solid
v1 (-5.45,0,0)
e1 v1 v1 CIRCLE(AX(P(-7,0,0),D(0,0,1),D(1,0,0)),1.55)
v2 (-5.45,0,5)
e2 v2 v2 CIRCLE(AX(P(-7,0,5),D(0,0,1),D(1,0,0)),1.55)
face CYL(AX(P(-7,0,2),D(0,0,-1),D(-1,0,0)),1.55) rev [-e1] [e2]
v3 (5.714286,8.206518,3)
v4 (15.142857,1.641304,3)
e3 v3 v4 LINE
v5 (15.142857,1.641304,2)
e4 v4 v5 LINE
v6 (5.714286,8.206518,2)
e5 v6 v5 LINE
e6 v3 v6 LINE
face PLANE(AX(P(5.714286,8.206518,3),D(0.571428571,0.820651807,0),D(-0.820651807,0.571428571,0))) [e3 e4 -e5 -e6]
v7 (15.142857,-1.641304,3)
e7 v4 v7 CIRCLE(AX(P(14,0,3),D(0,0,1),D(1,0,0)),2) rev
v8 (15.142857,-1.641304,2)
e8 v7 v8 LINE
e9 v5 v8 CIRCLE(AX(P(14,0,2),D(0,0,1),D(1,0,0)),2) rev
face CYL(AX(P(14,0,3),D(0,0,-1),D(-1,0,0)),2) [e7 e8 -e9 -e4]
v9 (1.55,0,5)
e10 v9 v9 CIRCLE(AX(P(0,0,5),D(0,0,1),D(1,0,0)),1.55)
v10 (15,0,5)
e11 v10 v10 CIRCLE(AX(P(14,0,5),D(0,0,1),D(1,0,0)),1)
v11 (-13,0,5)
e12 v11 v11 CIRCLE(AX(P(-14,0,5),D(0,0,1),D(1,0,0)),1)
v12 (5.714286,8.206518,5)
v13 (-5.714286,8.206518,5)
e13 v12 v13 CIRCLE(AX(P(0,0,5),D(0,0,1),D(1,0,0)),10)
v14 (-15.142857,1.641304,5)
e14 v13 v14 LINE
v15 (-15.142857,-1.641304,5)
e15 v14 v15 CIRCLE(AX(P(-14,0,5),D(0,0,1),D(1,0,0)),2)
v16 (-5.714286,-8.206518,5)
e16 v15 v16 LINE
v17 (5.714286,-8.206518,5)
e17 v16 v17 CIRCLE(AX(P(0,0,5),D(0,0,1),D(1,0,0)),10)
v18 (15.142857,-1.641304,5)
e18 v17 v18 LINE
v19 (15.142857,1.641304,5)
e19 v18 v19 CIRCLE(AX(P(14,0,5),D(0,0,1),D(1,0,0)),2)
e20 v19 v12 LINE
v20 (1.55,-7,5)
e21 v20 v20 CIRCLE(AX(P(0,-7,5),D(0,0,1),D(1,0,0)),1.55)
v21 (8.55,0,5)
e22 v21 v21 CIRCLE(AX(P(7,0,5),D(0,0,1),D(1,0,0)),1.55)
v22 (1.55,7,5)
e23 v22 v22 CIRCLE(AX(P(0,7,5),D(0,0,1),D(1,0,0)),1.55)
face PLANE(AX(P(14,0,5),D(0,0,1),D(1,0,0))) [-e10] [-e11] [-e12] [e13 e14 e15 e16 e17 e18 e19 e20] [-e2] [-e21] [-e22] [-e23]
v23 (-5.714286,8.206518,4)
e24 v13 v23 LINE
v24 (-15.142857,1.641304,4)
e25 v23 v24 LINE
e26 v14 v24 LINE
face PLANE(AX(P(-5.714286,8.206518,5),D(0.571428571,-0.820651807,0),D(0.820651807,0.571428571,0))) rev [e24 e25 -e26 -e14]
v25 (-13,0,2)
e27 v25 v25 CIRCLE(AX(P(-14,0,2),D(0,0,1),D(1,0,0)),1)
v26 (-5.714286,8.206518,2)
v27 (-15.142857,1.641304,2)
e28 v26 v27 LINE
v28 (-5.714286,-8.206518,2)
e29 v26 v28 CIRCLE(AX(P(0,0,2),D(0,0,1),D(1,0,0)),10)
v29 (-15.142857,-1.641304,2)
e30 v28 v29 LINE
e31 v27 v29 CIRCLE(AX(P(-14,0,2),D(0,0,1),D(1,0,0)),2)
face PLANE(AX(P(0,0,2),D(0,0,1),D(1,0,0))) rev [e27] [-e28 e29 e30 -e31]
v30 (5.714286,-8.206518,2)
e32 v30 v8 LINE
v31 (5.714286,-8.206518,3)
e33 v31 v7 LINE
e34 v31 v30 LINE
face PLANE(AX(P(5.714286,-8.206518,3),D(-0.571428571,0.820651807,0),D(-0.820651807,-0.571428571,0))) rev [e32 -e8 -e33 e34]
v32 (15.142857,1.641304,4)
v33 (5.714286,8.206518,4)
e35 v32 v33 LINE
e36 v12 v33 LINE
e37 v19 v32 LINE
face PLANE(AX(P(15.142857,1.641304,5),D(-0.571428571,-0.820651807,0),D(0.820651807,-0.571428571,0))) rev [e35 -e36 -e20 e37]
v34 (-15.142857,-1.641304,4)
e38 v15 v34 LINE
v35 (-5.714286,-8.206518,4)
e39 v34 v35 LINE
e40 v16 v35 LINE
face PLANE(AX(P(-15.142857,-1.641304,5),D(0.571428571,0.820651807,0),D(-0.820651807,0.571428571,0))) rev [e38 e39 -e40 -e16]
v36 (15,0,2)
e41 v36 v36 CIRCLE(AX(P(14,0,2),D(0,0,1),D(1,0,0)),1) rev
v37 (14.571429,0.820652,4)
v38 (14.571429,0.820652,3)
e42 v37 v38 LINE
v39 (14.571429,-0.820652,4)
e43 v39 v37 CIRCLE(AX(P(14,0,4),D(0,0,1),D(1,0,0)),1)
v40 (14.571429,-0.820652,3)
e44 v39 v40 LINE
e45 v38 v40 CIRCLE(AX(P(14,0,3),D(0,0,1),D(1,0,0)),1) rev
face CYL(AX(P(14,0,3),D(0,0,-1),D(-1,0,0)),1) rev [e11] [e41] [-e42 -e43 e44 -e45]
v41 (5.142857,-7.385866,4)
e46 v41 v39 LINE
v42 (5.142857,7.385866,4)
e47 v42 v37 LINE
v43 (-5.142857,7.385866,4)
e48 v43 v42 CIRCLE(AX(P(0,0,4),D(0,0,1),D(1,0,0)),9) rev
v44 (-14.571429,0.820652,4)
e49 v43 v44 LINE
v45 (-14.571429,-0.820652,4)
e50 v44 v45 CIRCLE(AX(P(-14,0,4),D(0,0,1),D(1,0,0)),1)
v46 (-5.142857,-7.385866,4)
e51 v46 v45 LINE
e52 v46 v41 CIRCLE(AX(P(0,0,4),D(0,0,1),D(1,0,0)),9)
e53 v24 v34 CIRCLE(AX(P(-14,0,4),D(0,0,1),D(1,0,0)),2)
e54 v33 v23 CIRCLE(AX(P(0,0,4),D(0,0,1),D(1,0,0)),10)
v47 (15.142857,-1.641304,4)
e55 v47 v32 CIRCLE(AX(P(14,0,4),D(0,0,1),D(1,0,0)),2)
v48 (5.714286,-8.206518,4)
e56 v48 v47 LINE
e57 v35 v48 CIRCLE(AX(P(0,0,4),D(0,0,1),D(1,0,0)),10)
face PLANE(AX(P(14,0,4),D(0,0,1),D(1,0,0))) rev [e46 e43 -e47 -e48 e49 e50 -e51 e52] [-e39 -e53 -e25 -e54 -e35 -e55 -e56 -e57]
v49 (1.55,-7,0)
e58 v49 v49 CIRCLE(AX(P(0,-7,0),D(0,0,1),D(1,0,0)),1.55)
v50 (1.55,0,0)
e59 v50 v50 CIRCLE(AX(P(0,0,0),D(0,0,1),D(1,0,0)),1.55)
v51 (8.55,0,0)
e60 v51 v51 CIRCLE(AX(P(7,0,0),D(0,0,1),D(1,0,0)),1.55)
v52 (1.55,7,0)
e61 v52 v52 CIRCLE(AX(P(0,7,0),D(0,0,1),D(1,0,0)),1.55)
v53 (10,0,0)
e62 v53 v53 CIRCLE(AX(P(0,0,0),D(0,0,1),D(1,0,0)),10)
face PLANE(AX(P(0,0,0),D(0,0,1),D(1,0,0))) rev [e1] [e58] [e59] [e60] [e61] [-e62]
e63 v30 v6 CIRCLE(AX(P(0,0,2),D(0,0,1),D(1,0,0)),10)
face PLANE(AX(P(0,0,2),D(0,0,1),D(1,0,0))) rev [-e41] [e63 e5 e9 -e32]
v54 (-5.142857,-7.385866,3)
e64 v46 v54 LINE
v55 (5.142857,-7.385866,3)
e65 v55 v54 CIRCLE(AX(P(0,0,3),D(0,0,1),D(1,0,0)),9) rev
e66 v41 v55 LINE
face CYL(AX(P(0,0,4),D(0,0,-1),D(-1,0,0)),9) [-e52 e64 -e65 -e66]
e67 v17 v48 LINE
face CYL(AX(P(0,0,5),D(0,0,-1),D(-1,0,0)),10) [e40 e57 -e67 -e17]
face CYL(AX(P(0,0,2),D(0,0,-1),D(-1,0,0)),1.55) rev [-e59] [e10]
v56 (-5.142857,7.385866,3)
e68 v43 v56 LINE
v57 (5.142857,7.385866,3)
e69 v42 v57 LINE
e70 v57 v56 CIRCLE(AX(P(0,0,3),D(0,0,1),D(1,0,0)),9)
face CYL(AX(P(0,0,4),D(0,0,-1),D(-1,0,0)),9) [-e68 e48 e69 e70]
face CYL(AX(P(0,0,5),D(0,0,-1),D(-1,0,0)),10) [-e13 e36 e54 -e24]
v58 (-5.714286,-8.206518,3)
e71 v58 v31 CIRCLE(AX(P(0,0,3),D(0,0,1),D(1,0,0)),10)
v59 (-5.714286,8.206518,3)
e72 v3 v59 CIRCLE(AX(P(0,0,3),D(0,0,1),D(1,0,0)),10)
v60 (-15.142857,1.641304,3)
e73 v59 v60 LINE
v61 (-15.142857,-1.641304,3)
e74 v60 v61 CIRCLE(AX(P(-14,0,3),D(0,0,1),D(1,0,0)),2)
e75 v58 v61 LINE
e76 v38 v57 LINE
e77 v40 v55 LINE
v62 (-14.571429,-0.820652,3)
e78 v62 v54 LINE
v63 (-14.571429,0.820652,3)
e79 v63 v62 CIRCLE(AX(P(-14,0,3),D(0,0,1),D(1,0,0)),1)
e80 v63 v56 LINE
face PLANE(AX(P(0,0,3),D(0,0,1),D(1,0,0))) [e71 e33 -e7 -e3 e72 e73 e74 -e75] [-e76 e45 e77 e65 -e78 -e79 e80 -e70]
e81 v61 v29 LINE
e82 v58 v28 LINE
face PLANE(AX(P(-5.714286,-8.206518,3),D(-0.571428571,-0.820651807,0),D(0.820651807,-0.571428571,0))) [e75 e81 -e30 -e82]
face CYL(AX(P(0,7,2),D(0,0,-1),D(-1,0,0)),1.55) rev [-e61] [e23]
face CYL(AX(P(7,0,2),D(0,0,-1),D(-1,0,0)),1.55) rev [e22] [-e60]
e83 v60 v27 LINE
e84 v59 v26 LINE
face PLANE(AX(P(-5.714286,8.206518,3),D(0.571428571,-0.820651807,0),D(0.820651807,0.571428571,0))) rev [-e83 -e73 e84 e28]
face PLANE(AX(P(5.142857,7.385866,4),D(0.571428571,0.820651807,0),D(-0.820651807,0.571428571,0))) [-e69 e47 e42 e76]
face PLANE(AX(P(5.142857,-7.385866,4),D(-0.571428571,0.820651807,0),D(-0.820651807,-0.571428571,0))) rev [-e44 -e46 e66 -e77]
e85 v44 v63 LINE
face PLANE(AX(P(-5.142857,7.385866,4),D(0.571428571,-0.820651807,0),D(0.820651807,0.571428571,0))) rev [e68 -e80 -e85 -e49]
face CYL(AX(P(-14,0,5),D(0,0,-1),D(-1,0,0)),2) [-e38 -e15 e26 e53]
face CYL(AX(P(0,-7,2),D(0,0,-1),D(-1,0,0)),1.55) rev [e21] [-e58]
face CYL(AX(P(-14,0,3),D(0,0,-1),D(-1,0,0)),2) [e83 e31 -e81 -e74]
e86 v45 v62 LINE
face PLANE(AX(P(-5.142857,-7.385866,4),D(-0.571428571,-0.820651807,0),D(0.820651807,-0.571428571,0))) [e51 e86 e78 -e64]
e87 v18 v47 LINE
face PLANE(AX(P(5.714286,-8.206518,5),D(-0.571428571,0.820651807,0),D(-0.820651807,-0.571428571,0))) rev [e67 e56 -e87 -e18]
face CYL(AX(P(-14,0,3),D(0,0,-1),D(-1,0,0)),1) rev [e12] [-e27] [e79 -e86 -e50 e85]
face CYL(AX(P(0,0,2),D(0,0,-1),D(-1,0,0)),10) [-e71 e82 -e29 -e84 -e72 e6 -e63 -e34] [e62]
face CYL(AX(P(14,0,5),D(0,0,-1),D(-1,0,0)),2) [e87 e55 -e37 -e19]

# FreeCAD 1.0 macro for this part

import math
import FreeCAD as App
import Part
import Sketcher
from FreeCAD import Vector

doc = App.newDocument("Part")
params = doc.addObject("Spreadsheet::Sheet", "Params")
for row, (alias, value) in enumerate([
    ("sketch1_diameter", "20 mm"),
    ("sketch1_diameter2", "3.1 mm"),
    ("pad1_length", "2 mm"),
    ("sketch2_radius", "2 mm"),
    ("sketch2_radius2", "10 mm"),
    ("sketch2_radius3", "1 mm"),
    ("sketch2_diameter", "3.1 mm"),
    ("pad2_length", "1 mm"),
    ("sketch3_radius", "1 mm"),
    ("sketch3_radius2", "9 mm"),
    ("sketch3_diameter", "3.1 mm"),
    ("pad3_length", "2 mm"),
    ("sketch4_diameter", "2 mm"),
    ("sketch4_radius", "10 mm"),
    ("sketch4_radius2", "2 mm"),
    ("sketch4_diameter2", "3.1 mm"),
    ("pad4_length", "1 mm"),
], start=1):
    params.set(f"A{row}", alias)
    params.set(f"B{row}", "=" + value)
    params.setAlias(f"B{row}", alias)

body = doc.addObject("PartDesign::Body", "Body")

# Sketch on XY plane
sketch1 = body.newObject("Sketcher::SketchObject", "Sketch")
sketch1.AttachmentSupport = (doc.getObject("XY_Plane"), [""])
sketch1.MapMode = "FlatFace"
sketch1.addGeometry(Part.Circle(Vector(0, 0, 0), Vector(0, 0, 1), 10), False)
sketch1.addGeometry(Part.Circle(Vector(0, -7, 0), Vector(0, 0, 1), 1.6), False)
sketch1.addGeometry(Part.Circle(Vector(-7, 0, 0), Vector(0, 0, 1), 1.6), False)
sketch1.addGeometry(Part.Circle(Vector(0, 0, 0), Vector(0, 0, 1), 1.6), False)
sketch1.addGeometry(Part.Circle(Vector(0, 7, 0), Vector(0, 0, 1), 1.6), False)
sketch1.addGeometry(Part.Circle(Vector(7, 0, 0), Vector(0, 0, 1), 1.6), False)
sketch1.addConstraint(Sketcher.Constraint("Coincident", 0, 3, -1, 1))
sketch1.addConstraint(Sketcher.Constraint("Coincident", 3, 3, -1, 1))
sketch1.addConstraint(Sketcher.Constraint("Equal", 1, 2))
sketch1.addConstraint(Sketcher.Constraint("Equal", 2, 3))
sketch1.addConstraint(Sketcher.Constraint("Equal", 3, 4))
sketch1.addConstraint(Sketcher.Constraint("Equal", 4, 5))
sketch1.addConstraint(Sketcher.Constraint("Symmetric", 1, 3, 4, 3, -1, 1))
sketch1.addConstraint(Sketcher.Constraint("Symmetric", 2, 3, 5, 3, -1, 1))
sketch1.addConstraint(Sketcher.Constraint("PointOnObject", 1, 3, -2))
sketch1.addConstraint(Sketcher.Constraint("PointOnObject", 2, 3, -1))
sketch1.addConstraint(Sketcher.Constraint("Diameter", 0, 20.0))
sketch1.addConstraint(Sketcher.Constraint("Diameter", 1, 3.1))
sketch1.addConstraint(Sketcher.Constraint("DistanceY", 1, 3, -1, 1, 7.0))
sketch1.addConstraint(Sketcher.Constraint("DistanceX", 2, 3, -1, 1, 7.0))
sketch1.setExpression("Constraints[10]", "Params.sketch1_diameter")
sketch1.setExpression("Constraints[11]", "Params.sketch1_diameter2")
pad1 = body.newObject("PartDesign::Pad", "Pad")
pad1.Profile = sketch1
pad1.setExpression("Length", "Params.pad1_length")

# Sketch on XY plane
sketch2 = body.newObject("Sketcher::SketchObject", "Sketch001")
sketch2.AttachmentSupport = (doc.getObject("XY_Plane"), [""])
sketch2.MapMode = "FlatFace"
sketch2.AttachmentOffset = App.Placement(Vector(0, 0, 2), App.Rotation())
sketch2.addGeometry(Part.LineSegment(Vector(-5.7, 8.2, 0), Vector(-15.1, 1.6, 0)), False)
sketch2.addGeometry(Part.ArcOfCircle(Part.Circle(Vector(-14, 0, 0), Vector(0, 0, 1), 2), math.radians(125), math.radians(235)), False)
sketch2.addGeometry(Part.LineSegment(Vector(-15.1, -1.6, 0), Vector(-5.7, -8.2, 0)), False)
sketch2.addGeometry(Part.ArcOfCircle(Part.Circle(Vector(0, 0, 0), Vector(0, 0, 1), 10), math.radians(-125), math.radians(-55)), False)
sketch2.addGeometry(Part.LineSegment(Vector(5.7, -8.2, 0), Vector(15.1, -1.6, 0)), False)
sketch2.addGeometry(Part.ArcOfCircle(Part.Circle(Vector(14, 0, 0), Vector(0, 0, 1), 2), math.radians(-55), math.radians(55)), False)
sketch2.addGeometry(Part.LineSegment(Vector(15.1, 1.6, 0), Vector(5.7, 8.2, 0)), False)
sketch2.addGeometry(Part.ArcOfCircle(Part.Circle(Vector(0, 0, 0), Vector(0, 0, 1), 10), math.radians(55), math.radians(125)), False)
sketch2.addGeometry(Part.ArcOfCircle(Part.Circle(Vector(-14, 0, 0), Vector(0, 0, 1), 1), math.radians(125), math.radians(235)), False)
sketch2.addGeometry(Part.ArcOfCircle(Part.Circle(Vector(-14, 0, 0), Vector(0, 0, 1), 1), math.radians(0), math.radians(125)), False)
sketch2.addGeometry(Part.ArcOfCircle(Part.Circle(Vector(-14, 0, 0), Vector(0, 0, 1), 1), math.radians(-125), math.radians(0)), False)
sketch2.addGeometry(Part.ArcOfCircle(Part.Circle(Vector(14, 0, 0), Vector(0, 0, 1), 1), math.radians(0), math.radians(55)), False)
sketch2.addGeometry(Part.ArcOfCircle(Part.Circle(Vector(14, 0, 0), Vector(0, 0, 1), 1), math.radians(-55), math.radians(0)), False)
sketch2.addGeometry(Part.ArcOfCircle(Part.Circle(Vector(14, 0, 0), Vector(0, 0, 1), 1), math.radians(55), math.radians(305)), False)
sketch2.addGeometry(Part.Circle(Vector(7, 0, 0), Vector(0, 0, 1), 1.6), False)
sketch2.addGeometry(Part.Circle(Vector(0, 7, 0), Vector(0, 0, 1), 1.6), False)
sketch2.addGeometry(Part.Circle(Vector(0, 0, 0), Vector(0, 0, 1), 1.6), False)
sketch2.addGeometry(Part.Circle(Vector(-7, 0, 0), Vector(0, 0, 1), 1.6), False)
sketch2.addGeometry(Part.Circle(Vector(0, -7, 0), Vector(0, 0, 1), 1.6), False)
sketch2.addConstraint(Sketcher.Constraint("Tangent", 0, 2, 1, 1))
sketch2.addConstraint(Sketcher.Constraint("Tangent", 1, 2, 2, 1))
sketch2.addConstraint(Sketcher.Constraint("Tangent", 2, 2, 3, 1))
sketch2.addConstraint(Sketcher.Constraint("Tangent", 3, 2, 4, 1))
sketch2.addConstraint(Sketcher.Constraint("Tangent", 4, 2, 5, 1))
sketch2.addConstraint(Sketcher.Constraint("Tangent", 5, 2, 6, 1))
sketch2.addConstraint(Sketcher.Constraint("Tangent", 6, 2, 7, 1))
sketch2.addConstraint(Sketcher.Constraint("Tangent", 7, 2, 0, 1))
sketch2.addConstraint(Sketcher.Constraint("Tangent", 8, 1, 9, 2))
sketch2.addConstraint(Sketcher.Constraint("Tangent", 9, 1, 10, 2))
sketch2.addConstraint(Sketcher.Constraint("Tangent", 10, 1, 8, 2))
sketch2.addConstraint(Sketcher.Constraint("Tangent", 11, 1, 12, 2))
sketch2.addConstraint(Sketcher.Constraint("Tangent", 12, 1, 13, 2))
sketch2.addConstraint(Sketcher.Constraint("Tangent", 13, 1, 11, 2))
sketch2.addConstraint(Sketcher.Constraint("Coincident", 3, 3, -1, 1))
sketch2.addConstraint(Sketcher.Constraint("Coincident", 7, 3, -1, 1))
sketch2.addConstraint(Sketcher.Constraint("Coincident", 16, 3, -1, 1))
sketch2.addConstraint(Sketcher.Constraint("Coincident", 8, 3, 1, 3))
sketch2.addConstraint(Sketcher.Constraint("Coincident", 11, 3, 5, 3))
sketch2.addConstraint(Sketcher.Constraint("Equal", 1, 5))
sketch2.addConstraint(Sketcher.Constraint("Equal", 3, 7))
sketch2.addConstraint(Sketcher.Constraint("Equal", 10, 11))
sketch2.addConstraint(Sketcher.Constraint("Equal", 14, 15))
sketch2.addConstraint(Sketcher.Constraint("Equal", 15, 16))
sketch2.addConstraint(Sketcher.Constraint("Equal", 16, 17))
sketch2.addConstraint(Sketcher.Constraint("Equal", 17, 18))
sketch2.addConstraint(Sketcher.Constraint("Symmetric", 1, 3, 5, 3, -1, 1))
sketch2.addConstraint(Sketcher.Constraint("Symmetric", 14, 3, 17, 3, -1, 1))
sketch2.addConstraint(Sketcher.Constraint("Symmetric", 15, 3, 18, 3, -1, 1))
sketch2.addConstraint(Sketcher.Constraint("Symmetric", 10, 1, 12, 1, -2))
sketch2.addConstraint(Sketcher.Constraint("PointOnObject", 14, 3, -1))
sketch2.addConstraint(Sketcher.Constraint("PointOnObject", 15, 3, -2))
sketch2.addConstraint(Sketcher.Constraint("PointOnObject", 9, 1, -1))
sketch2.addConstraint(Sketcher.Constraint("PointOnObject", 11, 1, -1))
sketch2.addConstraint(Sketcher.Constraint("Horizontal", 8, 1, 13, 1))
sketch2.addConstraint(Sketcher.Constraint("Vertical", 8, 1, 10, 1))
sketch2.addConstraint(Sketcher.Constraint("Radius", 1, 2.0))
sketch2.addConstraint(Sketcher.Constraint("Radius", 3, 10.0))
sketch2.addConstraint(Sketcher.Constraint("Radius", 8, 1.0))
sketch2.addConstraint(Sketcher.Constraint("Diameter", 14, 3.1))
sketch2.addConstraint(Sketcher.Constraint("DistanceX", 1, 3, -1, 1, 14.0))
sketch2.addConstraint(Sketcher.Constraint("DistanceX", -1, 1, 14, 3, 7.0))
sketch2.addConstraint(Sketcher.Constraint("DistanceY", -1, 1, 15, 3, 7.0))
sketch2.addConstraint(Sketcher.Constraint("DistanceX", 8, 1, -1, 1, 14.571429))
sketch2.setExpression("Constraints[36]", "Params.sketch2_radius")
sketch2.setExpression("Constraints[37]", "Params.sketch2_radius2")
sketch2.setExpression("Constraints[38]", "Params.sketch2_radius3")
sketch2.setExpression("Constraints[39]", "Params.sketch2_diameter")
pad2 = body.newObject("PartDesign::Pad", "Pad001")
pad2.Profile = sketch2
pad2.setExpression("Length", "Params.pad2_length")

# Sketch on XY plane
sketch3 = body.newObject("Sketcher::SketchObject", "Sketch002")
sketch3.AttachmentSupport = (doc.getObject("XY_Plane"), [""])
sketch3.MapMode = "FlatFace"
sketch3.AttachmentOffset = App.Placement(Vector(0, 0, 2), App.Rotation())
sketch3.addGeometry(Part.LineSegment(Vector(-5.1, 7.4, 0), Vector(-8.7, 4.9, 0)), False)
sketch3.addGeometry(Part.LineSegment(Vector(-8.7, 4.9, 0), Vector(-14.6, 0.8, 0)), False)
sketch3.addGeometry(Part.ArcOfCircle(Part.Circle(Vector(-14, 0, 0), Vector(0, 0, 1), 1), math.radians(0), math.radians(125)), False)
sketch3.addGeometry(Part.ArcOfCircle(Part.Circle(Vector(-14, 0, 0), Vector(0, 0, 1), 1), math.radians(-125), math.radians(0)), False)
sketch3.addGeometry(Part.LineSegment(Vector(-14.6, -0.8, 0), Vector(-8.7, -4.9, 0)), False)
sketch3.addGeometry(Part.LineSegment(Vector(-8.7, -4.9, 0), Vector(-5.1, -7.4, 0)), False)
sketch3.addGeometry(Part.ArcOfCircle(Part.Circle(Vector(0, 0, 0), Vector(0, 0, 1), 9), math.radians(-125), math.radians(-55)), False)
sketch3.addGeometry(Part.LineSegment(Vector(5.1, -7.4, 0), Vector(8.7, -4.9, 0)), False)
sketch3.addGeometry(Part.LineSegment(Vector(8.7, -4.9, 0), Vector(14.6, -0.8, 0)), False)
sketch3.addGeometry(Part.ArcOfCircle(Part.Circle(Vector(14, 0, 0), Vector(0, 0, 1), 1), math.radians(55), math.radians(305)), False)
sketch3.addGeometry(Part.LineSegment(Vector(14.6, 0.8, 0), Vector(8.7, 4.9, 0)), False)
sketch3.addGeometry(Part.LineSegment(Vector(8.7, 4.9, 0), Vector(5.1, 7.4, 0)), False)
sketch3.addGeometry(Part.ArcOfCircle(Part.Circle(Vector(0, 0, 0), Vector(0, 0, 1), 9), math.radians(55), math.radians(125)), False)
sketch3.addGeometry(Part.Circle(Vector(0, -7, 0), Vector(0, 0, 1), 1.6), False)
sketch3.addGeometry(Part.Circle(Vector(-7, 0, 0), Vector(0, 0, 1), 1.6), False)
sketch3.addGeometry(Part.Circle(Vector(0, 0, 0), Vector(0, 0, 1), 1.6), False)
sketch3.addGeometry(Part.Circle(Vector(0, 7, 0), Vector(0, 0, 1), 1.6), False)
sketch3.addGeometry(Part.Circle(Vector(7, 0, 0), Vector(0, 0, 1), 1.6), False)
sketch3.addConstraint(Sketcher.Constraint("Coincident", 0, 2, 1, 1))
sketch3.addConstraint(Sketcher.Constraint("Tangent", 1, 2, 2, 2))
sketch3.addConstraint(Sketcher.Constraint("Tangent", 2, 1, 3, 2))
sketch3.addConstraint(Sketcher.Constraint("Tangent", 3, 1, 4, 1))
sketch3.addConstraint(Sketcher.Constraint("Coincident", 4, 2, 5, 1))
sketch3.addConstraint(Sketcher.Constraint("Tangent", 5, 2, 6, 1))
sketch3.addConstraint(Sketcher.Constraint("Tangent", 6, 2, 7, 1))
sketch3.addConstraint(Sketcher.Constraint("Coincident", 7, 2, 8, 1))
sketch3.addConstraint(Sketcher.Constraint("Tangent", 8, 2, 9, 2))
sketch3.addConstraint(Sketcher.Constraint("Tangent", 9, 1, 10, 1))
sketch3.addConstraint(Sketcher.Constraint("Coincident", 10, 2, 11, 1))
sketch3.addConstraint(Sketcher.Constraint("Tangent", 11, 2, 12, 1))
sketch3.addConstraint(Sketcher.Constraint("Tangent", 12, 2, 0, 1))
sketch3.addConstraint(Sketcher.Constraint("Coincident", 6, 3, -1, 1))
sketch3.addConstraint(Sketcher.Constraint("Coincident", 12, 3, -1, 1))
sketch3.addConstraint(Sketcher.Constraint("Coincident", 15, 3, -1, 1))
sketch3.addConstraint(Sketcher.Constraint("Equal", 2, 3))
sketch3.addConstraint(Sketcher.Constraint("Equal", 3, 9))
sketch3.addConstraint(Sketcher.Constraint("Equal", 6, 12))
sketch3.addConstraint(Sketcher.Constraint("Equal", 13, 14))
sketch3.addConstraint(Sketcher.Constraint("Equal", 14, 15))
sketch3.addConstraint(Sketcher.Constraint("Equal", 15, 16))
sketch3.addConstraint(Sketcher.Constraint("Equal", 16, 17))
sketch3.addConstraint(Sketcher.Constraint("Symmetric", 2, 3, 9, 3, -1, 1))
sketch3.addConstraint(Sketcher.Constraint("Symmetric", 13, 3, 16, 3, -1, 1))
sketch3.addConstraint(Sketcher.Constraint("Symmetric", 14, 3, 17, 3, -1, 1))
sketch3.addConstraint(Sketcher.Constraint("Symmetric", 0, 2, 7, 2, -1, 1))
sketch3.addConstraint(Sketcher.Constraint("Symmetric", 4, 2, 10, 2, -1, 1))
sketch3.addConstraint(Sketcher.Constraint("Symmetric", 4, 2, 7, 2, -2))
sketch3.addConstraint(Sketcher.Constraint("PointOnObject", 2, 3, -1))
sketch3.addConstraint(Sketcher.Constraint("PointOnObject", 13, 3, -2))
sketch3.addConstraint(Sketcher.Constraint("PointOnObject", 14, 3, -1))
sketch3.addConstraint(Sketcher.Constraint("PointOnObject", 2, 1, -1))
sketch3.addConstraint(Sketcher.Constraint("Parallel", 0, 1))
sketch3.addConstraint(Sketcher.Constraint("Radius", 2, 1.0))
sketch3.addConstraint(Sketcher.Constraint("Radius", 6, 9.0))
sketch3.addConstraint(Sketcher.Constraint("Diameter", 13, 3.1))
sketch3.addConstraint(Sketcher.Constraint("DistanceX", 2, 3, -1, 1, 14.0))
sketch3.addConstraint(Sketcher.Constraint("DistanceY", 13, 3, -1, 1, 7.0))
sketch3.addConstraint(Sketcher.Constraint("DistanceX", 14, 3, -1, 1, 7.0))
sketch3.addConstraint(Sketcher.Constraint("Distance", 0, 4.358899))
sketch3.setExpression("Constraints[34]", "Params.sketch3_radius")
sketch3.setExpression("Constraints[35]", "Params.sketch3_radius2")
sketch3.setExpression("Constraints[36]", "Params.sketch3_diameter")
pad3 = body.newObject("PartDesign::Pad", "Pad002")
pad3.Profile = sketch3
pad3.setExpression("Length", "Params.pad3_length")

# Sketch on XY plane
sketch4 = body.newObject("Sketcher::SketchObject", "Sketch003")
sketch4.AttachmentSupport = (doc.getObject("XY_Plane"), [""])
sketch4.MapMode = "FlatFace"
sketch4.AttachmentOffset = App.Placement(Vector(0, 0, 4), App.Rotation())
sketch4.addGeometry(Part.LineSegment(Vector(15.1, 1.6, 0), Vector(5.7, 8.2, 0)), False)
sketch4.addGeometry(Part.ArcOfCircle(Part.Circle(Vector(0, 0, 0), Vector(0, 0, 1), 10), math.radians(55), math.radians(125)), False)
sketch4.addGeometry(Part.LineSegment(Vector(-5.7, 8.2, 0), Vector(-15.1, 1.6, 0)), False)
sketch4.addGeometry(Part.ArcOfCircle(Part.Circle(Vector(-14, 0, 0), Vector(0, 0, 1), 2), math.radians(125), math.radians(235)), False)
sketch4.addGeometry(Part.LineSegment(Vector(-15.1, -1.6, 0), Vector(-5.7, -8.2, 0)), False)
sketch4.addGeometry(Part.ArcOfCircle(Part.Circle(Vector(0, 0, 0), Vector(0, 0, 1), 10), math.radians(-125), math.radians(-55)), False)
sketch4.addGeometry(Part.LineSegment(Vector(5.7, -8.2, 0), Vector(15.1, -1.6, 0)), False)
sketch4.addGeometry(Part.ArcOfCircle(Part.Circle(Vector(14, 0, 0), Vector(0, 0, 1), 2), math.radians(-55), math.radians(55)), False)
sketch4.addGeometry(Part.Circle(Vector(0, -7, 0), Vector(0, 0, 1), 1.6), False)
sketch4.addGeometry(Part.Circle(Vector(-14, 0, 0), Vector(0, 0, 1), 1), False)
sketch4.addGeometry(Part.Circle(Vector(-7, 0, 0), Vector(0, 0, 1), 1.6), False)
sketch4.addGeometry(Part.Circle(Vector(0, 0, 0), Vector(0, 0, 1), 1.6), False)
sketch4.addGeometry(Part.Circle(Vector(7, 0, 0), Vector(0, 0, 1), 1.6), False)
sketch4.addGeometry(Part.Circle(Vector(14, 0, 0), Vector(0, 0, 1), 1), False)
sketch4.addGeometry(Part.Circle(Vector(0, 7, 0), Vector(0, 0, 1), 1.6), False)
sketch4.addConstraint(Sketcher.Constraint("Tangent", 0, 2, 1, 1))
sketch4.addConstraint(Sketcher.Constraint("Tangent", 1, 2, 2, 1))
sketch4.addConstraint(Sketcher.Constraint("Tangent", 2, 2, 3, 1))
sketch4.addConstraint(Sketcher.Constraint("Tangent", 3, 2, 4, 1))
sketch4.addConstraint(Sketcher.Constraint("Tangent", 4, 2, 5, 1))
sketch4.addConstraint(Sketcher.Constraint("Tangent", 5, 2, 6, 1))
sketch4.addConstraint(Sketcher.Constraint("Tangent", 6, 2, 7, 1))
sketch4.addConstraint(Sketcher.Constraint("Tangent", 7, 2, 0, 1))
sketch4.addConstraint(Sketcher.Constraint("Coincident", 1, 3, -1, 1))
sketch4.addConstraint(Sketcher.Constraint("Coincident", 5, 3, -1, 1))
sketch4.addConstraint(Sketcher.Constraint("Coincident", 11, 3, -1, 1))
sketch4.addConstraint(Sketcher.Constraint("Coincident", 9, 3, 3, 3))
sketch4.addConstraint(Sketcher.Constraint("Coincident", 13, 3, 7, 3))
sketch4.addConstraint(Sketcher.Constraint("Equal", 1, 5))
sketch4.addConstraint(Sketcher.Constraint("Equal", 3, 7))
sketch4.addConstraint(Sketcher.Constraint("Equal", 8, 10))
sketch4.addConstraint(Sketcher.Constraint("Equal", 10, 11))
sketch4.addConstraint(Sketcher.Constraint("Equal", 11, 12))
sketch4.addConstraint(Sketcher.Constraint("Equal", 9, 13))
sketch4.addConstraint(Sketcher.Constraint("Equal", 12, 14))
sketch4.addConstraint(Sketcher.Constraint("Symmetric", 3, 3, 7, 3, -1, 1))
sketch4.addConstraint(Sketcher.Constraint("Symmetric", 10, 3, 12, 3, -1, 1))
sketch4.addConstraint(Sketcher.Constraint("Symmetric", 8, 3, 14, 3, -1, 1))
sketch4.addConstraint(Sketcher.Constraint("PointOnObject", 3, 3, -1))
sketch4.addConstraint(Sketcher.Constraint("PointOnObject", 8, 3, -2))
sketch4.addConstraint(Sketcher.Constraint("PointOnObject", 10, 3, -1))
sketch4.addConstraint(Sketcher.Constraint("Diameter", 9, 2.0))
sketch4.addConstraint(Sketcher.Constraint("Radius", 1, 10.0))
sketch4.addConstraint(Sketcher.Constraint("Radius", 3, 2.0))
sketch4.addConstraint(Sketcher.Constraint("Diameter", 8, 3.1))
sketch4.addConstraint(Sketcher.Constraint("DistanceX", 3, 3, -1, 1, 14.0))
sketch4.addConstraint(Sketcher.Constraint("DistanceY", 8, 3, -1, 1, 7.0))
sketch4.addConstraint(Sketcher.Constraint("DistanceX", 10, 3, -1, 1, 7.0))
sketch4.setExpression("Constraints[26]", "Params.sketch4_diameter")
sketch4.setExpression("Constraints[27]", "Params.sketch4_radius")
sketch4.setExpression("Constraints[28]", "Params.sketch4_radius2")
sketch4.setExpression("Constraints[29]", "Params.sketch4_diameter2")
pad4 = body.newObject("PartDesign::Pad", "Pad003")
pad4.Profile = sketch4
pad4.setExpression("Length", "Params.pad4_length")

doc.recompute()
